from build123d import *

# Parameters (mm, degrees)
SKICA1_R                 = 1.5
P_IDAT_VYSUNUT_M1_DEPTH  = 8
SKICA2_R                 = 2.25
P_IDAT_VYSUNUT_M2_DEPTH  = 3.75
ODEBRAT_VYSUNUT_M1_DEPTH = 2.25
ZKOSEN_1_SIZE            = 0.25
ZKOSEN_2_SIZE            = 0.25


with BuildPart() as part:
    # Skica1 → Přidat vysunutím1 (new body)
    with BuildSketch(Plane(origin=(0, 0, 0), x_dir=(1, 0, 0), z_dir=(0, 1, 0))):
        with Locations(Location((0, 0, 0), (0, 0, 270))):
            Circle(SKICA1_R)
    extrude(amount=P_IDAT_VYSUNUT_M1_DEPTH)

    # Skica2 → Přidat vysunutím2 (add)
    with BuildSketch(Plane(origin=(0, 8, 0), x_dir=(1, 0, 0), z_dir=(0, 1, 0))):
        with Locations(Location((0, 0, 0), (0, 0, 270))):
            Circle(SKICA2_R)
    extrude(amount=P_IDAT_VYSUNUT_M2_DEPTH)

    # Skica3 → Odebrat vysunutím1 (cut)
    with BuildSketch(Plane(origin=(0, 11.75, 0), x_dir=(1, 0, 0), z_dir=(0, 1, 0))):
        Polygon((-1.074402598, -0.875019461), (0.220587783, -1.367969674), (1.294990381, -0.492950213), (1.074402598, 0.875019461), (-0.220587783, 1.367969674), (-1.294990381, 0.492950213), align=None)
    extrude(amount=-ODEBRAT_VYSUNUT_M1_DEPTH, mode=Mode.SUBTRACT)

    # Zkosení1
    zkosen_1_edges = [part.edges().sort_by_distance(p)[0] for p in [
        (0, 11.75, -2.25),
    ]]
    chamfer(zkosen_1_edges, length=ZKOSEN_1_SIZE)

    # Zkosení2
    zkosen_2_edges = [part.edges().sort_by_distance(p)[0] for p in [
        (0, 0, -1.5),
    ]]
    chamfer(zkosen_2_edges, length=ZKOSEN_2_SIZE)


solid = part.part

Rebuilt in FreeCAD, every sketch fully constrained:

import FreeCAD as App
import Part
import Sketcher
from FreeCAD import Vector
Q = App.Units.Quantity


def edges_at(feature, points):
    """Names of the edges that pass closest to the given points."""
    edges = feature.Shape.Edges
    near = lambda p: min(range(len(edges)), key=lambda i: edges[i].distToShape(Part.Vertex(*p))[0])
    return sorted({f"Edge{near(p) + 1}" for p in points})

doc = App.newDocument("Part")
body = doc.addObject("PartDesign::Body", "Body")

# Sketch on XZ plane
sketch1 = doc.addObject("Sketcher::SketchObject", "Sketch")
body.addObject(sketch1)
sketch1.AttachmentSupport = (doc.XZ_Plane, [""])
sketch1.MapMode = "FlatFace"
sketch1.addGeometry(Part.Circle(Vector(0, 0, 0), Vector(0, 0, 1), 1.5), False)
sketch1.addConstraint(Sketcher.Constraint("Coincident", 0, 3, -1, 1))
sketch1.addConstraint(Sketcher.Constraint("Diameter", 0, Q("3 mm")))
pad1 = doc.addObject("PartDesign::Pad", "Pad")
body.addObject(pad1)
pad1.Profile = sketch1
pad1.Length = 8
pad1.Reversed = True

# Sketch on XZ plane
sketch2 = doc.addObject("Sketcher::SketchObject", "Sketch001")
body.addObject(sketch2)
sketch2.AttachmentSupport = (doc.XZ_Plane, [""])
sketch2.MapMode = "FlatFace"
sketch2.AttachmentOffset = App.Placement(Vector(0, 0, -8), App.Rotation())
sketch2.addGeometry(Part.Circle(Vector(0, 0, 0), Vector(0, 0, 1), 2.2), False)
sketch2.addConstraint(Sketcher.Constraint("Coincident", 0, 3, -1, 1))
sketch2.addConstraint(Sketcher.Constraint("Diameter", 0, Q("4.5 mm")))
pad2 = doc.addObject("PartDesign::Pad", "Pad001")
body.addObject(pad2)
pad2.Profile = sketch2
pad2.Length = 3.75
pad2.Reversed = True

# Sketch on XZ plane
sketch3 = doc.addObject("Sketcher::SketchObject", "Sketch002")
body.addObject(sketch3)
sketch3.AttachmentSupport = (doc.XZ_Plane, [""])
sketch3.MapMode = "FlatFace"
sketch3.AttachmentOffset = App.Placement(Vector(0, 0, -11.75), App.Rotation())
sketch3.addGeometry(Part.LineSegment(Vector(-1.1, 0.9, 0), Vector(0.2, 1.4, 0)), False)
sketch3.addGeometry(Part.LineSegment(Vector(0.2, 1.4, 0), Vector(1.3, 0.5, 0)), False)
sketch3.addGeometry(Part.LineSegment(Vector(1.3, 0.5, 0), Vector(1.1, -0.9, 0)), False)
sketch3.addGeometry(Part.LineSegment(Vector(1.1, -0.9, 0), Vector(-0.2, -1.4, 0)), False)
sketch3.addGeometry(Part.LineSegment(Vector(-0.2, -1.4, 0), Vector(-1.3, -0.5, 0)), False)
sketch3.addGeometry(Part.LineSegment(Vector(-1.3, -0.5, 0), Vector(-1.1, 0.9, 0)), False)
sketch3.addConstraint(Sketcher.Constraint("Coincident", 0, 2, 1, 1))
sketch3.addConstraint(Sketcher.Constraint("Coincident", 1, 2, 2, 1))
sketch3.addConstraint(Sketcher.Constraint("Coincident", 2, 2, 3, 1))
sketch3.addConstraint(Sketcher.Constraint("Coincident", 3, 2, 4, 1))
sketch3.addConstraint(Sketcher.Constraint("Coincident", 4, 2, 5, 1))
sketch3.addConstraint(Sketcher.Constraint("Coincident", 5, 2, 0, 1))
sketch3.addConstraint(Sketcher.Constraint("Symmetric", 0, 2, 3, 2, -1, 1))
sketch3.addConstraint(Sketcher.Constraint("Symmetric", 1, 2, 4, 2, -1, 1))
sketch3.addConstraint(Sketcher.Constraint("Symmetric", 2, 2, 5, 2, -1, 1))
sketch3.addConstraint(Sketcher.Constraint("Equal", 0, 1))
sketch3.addConstraint(Sketcher.Constraint("Equal", 1, 2))
sketch3.addConstraint(Sketcher.Constraint("DistanceY", 4, 2, 1, 2, Q("0.9859 mm")))
sketch3.addConstraint(Sketcher.Constraint("Distance", 0, Q("1.385641 mm")))
sketch3.addConstraint(Sketcher.Constraint("DistanceY", -1, 1, 0, 2, Q("1.36797 mm")))
sketch3.addConstraint(Sketcher.Constraint("DistanceX", -1, 1, 1, 2, Q("1.29499 mm")))
pocket1 = doc.addObject("PartDesign::Pocket", "Pocket")
body.addObject(pocket1)
pocket1.Profile = sketch3
pocket1.Length = 2.25
pocket1.Reversed = True
doc.recompute()

chamfer = doc.addObject("PartDesign::Chamfer", "Chamfer")
body.addObject(chamfer)
chamfer.Base = (pocket1, edges_at(pocket1, [(0, 11.75, -2.25)]))
chamfer.Size = 0.25
doc.recompute()

chamfer2 = doc.addObject("PartDesign::Chamfer", "Chamfer001")
body.addObject(chamfer2)
chamfer2.Base = (chamfer, edges_at(chamfer, [(0, 0, -1.5)]))
chamfer2.Size = 0.25

doc.recompute()
